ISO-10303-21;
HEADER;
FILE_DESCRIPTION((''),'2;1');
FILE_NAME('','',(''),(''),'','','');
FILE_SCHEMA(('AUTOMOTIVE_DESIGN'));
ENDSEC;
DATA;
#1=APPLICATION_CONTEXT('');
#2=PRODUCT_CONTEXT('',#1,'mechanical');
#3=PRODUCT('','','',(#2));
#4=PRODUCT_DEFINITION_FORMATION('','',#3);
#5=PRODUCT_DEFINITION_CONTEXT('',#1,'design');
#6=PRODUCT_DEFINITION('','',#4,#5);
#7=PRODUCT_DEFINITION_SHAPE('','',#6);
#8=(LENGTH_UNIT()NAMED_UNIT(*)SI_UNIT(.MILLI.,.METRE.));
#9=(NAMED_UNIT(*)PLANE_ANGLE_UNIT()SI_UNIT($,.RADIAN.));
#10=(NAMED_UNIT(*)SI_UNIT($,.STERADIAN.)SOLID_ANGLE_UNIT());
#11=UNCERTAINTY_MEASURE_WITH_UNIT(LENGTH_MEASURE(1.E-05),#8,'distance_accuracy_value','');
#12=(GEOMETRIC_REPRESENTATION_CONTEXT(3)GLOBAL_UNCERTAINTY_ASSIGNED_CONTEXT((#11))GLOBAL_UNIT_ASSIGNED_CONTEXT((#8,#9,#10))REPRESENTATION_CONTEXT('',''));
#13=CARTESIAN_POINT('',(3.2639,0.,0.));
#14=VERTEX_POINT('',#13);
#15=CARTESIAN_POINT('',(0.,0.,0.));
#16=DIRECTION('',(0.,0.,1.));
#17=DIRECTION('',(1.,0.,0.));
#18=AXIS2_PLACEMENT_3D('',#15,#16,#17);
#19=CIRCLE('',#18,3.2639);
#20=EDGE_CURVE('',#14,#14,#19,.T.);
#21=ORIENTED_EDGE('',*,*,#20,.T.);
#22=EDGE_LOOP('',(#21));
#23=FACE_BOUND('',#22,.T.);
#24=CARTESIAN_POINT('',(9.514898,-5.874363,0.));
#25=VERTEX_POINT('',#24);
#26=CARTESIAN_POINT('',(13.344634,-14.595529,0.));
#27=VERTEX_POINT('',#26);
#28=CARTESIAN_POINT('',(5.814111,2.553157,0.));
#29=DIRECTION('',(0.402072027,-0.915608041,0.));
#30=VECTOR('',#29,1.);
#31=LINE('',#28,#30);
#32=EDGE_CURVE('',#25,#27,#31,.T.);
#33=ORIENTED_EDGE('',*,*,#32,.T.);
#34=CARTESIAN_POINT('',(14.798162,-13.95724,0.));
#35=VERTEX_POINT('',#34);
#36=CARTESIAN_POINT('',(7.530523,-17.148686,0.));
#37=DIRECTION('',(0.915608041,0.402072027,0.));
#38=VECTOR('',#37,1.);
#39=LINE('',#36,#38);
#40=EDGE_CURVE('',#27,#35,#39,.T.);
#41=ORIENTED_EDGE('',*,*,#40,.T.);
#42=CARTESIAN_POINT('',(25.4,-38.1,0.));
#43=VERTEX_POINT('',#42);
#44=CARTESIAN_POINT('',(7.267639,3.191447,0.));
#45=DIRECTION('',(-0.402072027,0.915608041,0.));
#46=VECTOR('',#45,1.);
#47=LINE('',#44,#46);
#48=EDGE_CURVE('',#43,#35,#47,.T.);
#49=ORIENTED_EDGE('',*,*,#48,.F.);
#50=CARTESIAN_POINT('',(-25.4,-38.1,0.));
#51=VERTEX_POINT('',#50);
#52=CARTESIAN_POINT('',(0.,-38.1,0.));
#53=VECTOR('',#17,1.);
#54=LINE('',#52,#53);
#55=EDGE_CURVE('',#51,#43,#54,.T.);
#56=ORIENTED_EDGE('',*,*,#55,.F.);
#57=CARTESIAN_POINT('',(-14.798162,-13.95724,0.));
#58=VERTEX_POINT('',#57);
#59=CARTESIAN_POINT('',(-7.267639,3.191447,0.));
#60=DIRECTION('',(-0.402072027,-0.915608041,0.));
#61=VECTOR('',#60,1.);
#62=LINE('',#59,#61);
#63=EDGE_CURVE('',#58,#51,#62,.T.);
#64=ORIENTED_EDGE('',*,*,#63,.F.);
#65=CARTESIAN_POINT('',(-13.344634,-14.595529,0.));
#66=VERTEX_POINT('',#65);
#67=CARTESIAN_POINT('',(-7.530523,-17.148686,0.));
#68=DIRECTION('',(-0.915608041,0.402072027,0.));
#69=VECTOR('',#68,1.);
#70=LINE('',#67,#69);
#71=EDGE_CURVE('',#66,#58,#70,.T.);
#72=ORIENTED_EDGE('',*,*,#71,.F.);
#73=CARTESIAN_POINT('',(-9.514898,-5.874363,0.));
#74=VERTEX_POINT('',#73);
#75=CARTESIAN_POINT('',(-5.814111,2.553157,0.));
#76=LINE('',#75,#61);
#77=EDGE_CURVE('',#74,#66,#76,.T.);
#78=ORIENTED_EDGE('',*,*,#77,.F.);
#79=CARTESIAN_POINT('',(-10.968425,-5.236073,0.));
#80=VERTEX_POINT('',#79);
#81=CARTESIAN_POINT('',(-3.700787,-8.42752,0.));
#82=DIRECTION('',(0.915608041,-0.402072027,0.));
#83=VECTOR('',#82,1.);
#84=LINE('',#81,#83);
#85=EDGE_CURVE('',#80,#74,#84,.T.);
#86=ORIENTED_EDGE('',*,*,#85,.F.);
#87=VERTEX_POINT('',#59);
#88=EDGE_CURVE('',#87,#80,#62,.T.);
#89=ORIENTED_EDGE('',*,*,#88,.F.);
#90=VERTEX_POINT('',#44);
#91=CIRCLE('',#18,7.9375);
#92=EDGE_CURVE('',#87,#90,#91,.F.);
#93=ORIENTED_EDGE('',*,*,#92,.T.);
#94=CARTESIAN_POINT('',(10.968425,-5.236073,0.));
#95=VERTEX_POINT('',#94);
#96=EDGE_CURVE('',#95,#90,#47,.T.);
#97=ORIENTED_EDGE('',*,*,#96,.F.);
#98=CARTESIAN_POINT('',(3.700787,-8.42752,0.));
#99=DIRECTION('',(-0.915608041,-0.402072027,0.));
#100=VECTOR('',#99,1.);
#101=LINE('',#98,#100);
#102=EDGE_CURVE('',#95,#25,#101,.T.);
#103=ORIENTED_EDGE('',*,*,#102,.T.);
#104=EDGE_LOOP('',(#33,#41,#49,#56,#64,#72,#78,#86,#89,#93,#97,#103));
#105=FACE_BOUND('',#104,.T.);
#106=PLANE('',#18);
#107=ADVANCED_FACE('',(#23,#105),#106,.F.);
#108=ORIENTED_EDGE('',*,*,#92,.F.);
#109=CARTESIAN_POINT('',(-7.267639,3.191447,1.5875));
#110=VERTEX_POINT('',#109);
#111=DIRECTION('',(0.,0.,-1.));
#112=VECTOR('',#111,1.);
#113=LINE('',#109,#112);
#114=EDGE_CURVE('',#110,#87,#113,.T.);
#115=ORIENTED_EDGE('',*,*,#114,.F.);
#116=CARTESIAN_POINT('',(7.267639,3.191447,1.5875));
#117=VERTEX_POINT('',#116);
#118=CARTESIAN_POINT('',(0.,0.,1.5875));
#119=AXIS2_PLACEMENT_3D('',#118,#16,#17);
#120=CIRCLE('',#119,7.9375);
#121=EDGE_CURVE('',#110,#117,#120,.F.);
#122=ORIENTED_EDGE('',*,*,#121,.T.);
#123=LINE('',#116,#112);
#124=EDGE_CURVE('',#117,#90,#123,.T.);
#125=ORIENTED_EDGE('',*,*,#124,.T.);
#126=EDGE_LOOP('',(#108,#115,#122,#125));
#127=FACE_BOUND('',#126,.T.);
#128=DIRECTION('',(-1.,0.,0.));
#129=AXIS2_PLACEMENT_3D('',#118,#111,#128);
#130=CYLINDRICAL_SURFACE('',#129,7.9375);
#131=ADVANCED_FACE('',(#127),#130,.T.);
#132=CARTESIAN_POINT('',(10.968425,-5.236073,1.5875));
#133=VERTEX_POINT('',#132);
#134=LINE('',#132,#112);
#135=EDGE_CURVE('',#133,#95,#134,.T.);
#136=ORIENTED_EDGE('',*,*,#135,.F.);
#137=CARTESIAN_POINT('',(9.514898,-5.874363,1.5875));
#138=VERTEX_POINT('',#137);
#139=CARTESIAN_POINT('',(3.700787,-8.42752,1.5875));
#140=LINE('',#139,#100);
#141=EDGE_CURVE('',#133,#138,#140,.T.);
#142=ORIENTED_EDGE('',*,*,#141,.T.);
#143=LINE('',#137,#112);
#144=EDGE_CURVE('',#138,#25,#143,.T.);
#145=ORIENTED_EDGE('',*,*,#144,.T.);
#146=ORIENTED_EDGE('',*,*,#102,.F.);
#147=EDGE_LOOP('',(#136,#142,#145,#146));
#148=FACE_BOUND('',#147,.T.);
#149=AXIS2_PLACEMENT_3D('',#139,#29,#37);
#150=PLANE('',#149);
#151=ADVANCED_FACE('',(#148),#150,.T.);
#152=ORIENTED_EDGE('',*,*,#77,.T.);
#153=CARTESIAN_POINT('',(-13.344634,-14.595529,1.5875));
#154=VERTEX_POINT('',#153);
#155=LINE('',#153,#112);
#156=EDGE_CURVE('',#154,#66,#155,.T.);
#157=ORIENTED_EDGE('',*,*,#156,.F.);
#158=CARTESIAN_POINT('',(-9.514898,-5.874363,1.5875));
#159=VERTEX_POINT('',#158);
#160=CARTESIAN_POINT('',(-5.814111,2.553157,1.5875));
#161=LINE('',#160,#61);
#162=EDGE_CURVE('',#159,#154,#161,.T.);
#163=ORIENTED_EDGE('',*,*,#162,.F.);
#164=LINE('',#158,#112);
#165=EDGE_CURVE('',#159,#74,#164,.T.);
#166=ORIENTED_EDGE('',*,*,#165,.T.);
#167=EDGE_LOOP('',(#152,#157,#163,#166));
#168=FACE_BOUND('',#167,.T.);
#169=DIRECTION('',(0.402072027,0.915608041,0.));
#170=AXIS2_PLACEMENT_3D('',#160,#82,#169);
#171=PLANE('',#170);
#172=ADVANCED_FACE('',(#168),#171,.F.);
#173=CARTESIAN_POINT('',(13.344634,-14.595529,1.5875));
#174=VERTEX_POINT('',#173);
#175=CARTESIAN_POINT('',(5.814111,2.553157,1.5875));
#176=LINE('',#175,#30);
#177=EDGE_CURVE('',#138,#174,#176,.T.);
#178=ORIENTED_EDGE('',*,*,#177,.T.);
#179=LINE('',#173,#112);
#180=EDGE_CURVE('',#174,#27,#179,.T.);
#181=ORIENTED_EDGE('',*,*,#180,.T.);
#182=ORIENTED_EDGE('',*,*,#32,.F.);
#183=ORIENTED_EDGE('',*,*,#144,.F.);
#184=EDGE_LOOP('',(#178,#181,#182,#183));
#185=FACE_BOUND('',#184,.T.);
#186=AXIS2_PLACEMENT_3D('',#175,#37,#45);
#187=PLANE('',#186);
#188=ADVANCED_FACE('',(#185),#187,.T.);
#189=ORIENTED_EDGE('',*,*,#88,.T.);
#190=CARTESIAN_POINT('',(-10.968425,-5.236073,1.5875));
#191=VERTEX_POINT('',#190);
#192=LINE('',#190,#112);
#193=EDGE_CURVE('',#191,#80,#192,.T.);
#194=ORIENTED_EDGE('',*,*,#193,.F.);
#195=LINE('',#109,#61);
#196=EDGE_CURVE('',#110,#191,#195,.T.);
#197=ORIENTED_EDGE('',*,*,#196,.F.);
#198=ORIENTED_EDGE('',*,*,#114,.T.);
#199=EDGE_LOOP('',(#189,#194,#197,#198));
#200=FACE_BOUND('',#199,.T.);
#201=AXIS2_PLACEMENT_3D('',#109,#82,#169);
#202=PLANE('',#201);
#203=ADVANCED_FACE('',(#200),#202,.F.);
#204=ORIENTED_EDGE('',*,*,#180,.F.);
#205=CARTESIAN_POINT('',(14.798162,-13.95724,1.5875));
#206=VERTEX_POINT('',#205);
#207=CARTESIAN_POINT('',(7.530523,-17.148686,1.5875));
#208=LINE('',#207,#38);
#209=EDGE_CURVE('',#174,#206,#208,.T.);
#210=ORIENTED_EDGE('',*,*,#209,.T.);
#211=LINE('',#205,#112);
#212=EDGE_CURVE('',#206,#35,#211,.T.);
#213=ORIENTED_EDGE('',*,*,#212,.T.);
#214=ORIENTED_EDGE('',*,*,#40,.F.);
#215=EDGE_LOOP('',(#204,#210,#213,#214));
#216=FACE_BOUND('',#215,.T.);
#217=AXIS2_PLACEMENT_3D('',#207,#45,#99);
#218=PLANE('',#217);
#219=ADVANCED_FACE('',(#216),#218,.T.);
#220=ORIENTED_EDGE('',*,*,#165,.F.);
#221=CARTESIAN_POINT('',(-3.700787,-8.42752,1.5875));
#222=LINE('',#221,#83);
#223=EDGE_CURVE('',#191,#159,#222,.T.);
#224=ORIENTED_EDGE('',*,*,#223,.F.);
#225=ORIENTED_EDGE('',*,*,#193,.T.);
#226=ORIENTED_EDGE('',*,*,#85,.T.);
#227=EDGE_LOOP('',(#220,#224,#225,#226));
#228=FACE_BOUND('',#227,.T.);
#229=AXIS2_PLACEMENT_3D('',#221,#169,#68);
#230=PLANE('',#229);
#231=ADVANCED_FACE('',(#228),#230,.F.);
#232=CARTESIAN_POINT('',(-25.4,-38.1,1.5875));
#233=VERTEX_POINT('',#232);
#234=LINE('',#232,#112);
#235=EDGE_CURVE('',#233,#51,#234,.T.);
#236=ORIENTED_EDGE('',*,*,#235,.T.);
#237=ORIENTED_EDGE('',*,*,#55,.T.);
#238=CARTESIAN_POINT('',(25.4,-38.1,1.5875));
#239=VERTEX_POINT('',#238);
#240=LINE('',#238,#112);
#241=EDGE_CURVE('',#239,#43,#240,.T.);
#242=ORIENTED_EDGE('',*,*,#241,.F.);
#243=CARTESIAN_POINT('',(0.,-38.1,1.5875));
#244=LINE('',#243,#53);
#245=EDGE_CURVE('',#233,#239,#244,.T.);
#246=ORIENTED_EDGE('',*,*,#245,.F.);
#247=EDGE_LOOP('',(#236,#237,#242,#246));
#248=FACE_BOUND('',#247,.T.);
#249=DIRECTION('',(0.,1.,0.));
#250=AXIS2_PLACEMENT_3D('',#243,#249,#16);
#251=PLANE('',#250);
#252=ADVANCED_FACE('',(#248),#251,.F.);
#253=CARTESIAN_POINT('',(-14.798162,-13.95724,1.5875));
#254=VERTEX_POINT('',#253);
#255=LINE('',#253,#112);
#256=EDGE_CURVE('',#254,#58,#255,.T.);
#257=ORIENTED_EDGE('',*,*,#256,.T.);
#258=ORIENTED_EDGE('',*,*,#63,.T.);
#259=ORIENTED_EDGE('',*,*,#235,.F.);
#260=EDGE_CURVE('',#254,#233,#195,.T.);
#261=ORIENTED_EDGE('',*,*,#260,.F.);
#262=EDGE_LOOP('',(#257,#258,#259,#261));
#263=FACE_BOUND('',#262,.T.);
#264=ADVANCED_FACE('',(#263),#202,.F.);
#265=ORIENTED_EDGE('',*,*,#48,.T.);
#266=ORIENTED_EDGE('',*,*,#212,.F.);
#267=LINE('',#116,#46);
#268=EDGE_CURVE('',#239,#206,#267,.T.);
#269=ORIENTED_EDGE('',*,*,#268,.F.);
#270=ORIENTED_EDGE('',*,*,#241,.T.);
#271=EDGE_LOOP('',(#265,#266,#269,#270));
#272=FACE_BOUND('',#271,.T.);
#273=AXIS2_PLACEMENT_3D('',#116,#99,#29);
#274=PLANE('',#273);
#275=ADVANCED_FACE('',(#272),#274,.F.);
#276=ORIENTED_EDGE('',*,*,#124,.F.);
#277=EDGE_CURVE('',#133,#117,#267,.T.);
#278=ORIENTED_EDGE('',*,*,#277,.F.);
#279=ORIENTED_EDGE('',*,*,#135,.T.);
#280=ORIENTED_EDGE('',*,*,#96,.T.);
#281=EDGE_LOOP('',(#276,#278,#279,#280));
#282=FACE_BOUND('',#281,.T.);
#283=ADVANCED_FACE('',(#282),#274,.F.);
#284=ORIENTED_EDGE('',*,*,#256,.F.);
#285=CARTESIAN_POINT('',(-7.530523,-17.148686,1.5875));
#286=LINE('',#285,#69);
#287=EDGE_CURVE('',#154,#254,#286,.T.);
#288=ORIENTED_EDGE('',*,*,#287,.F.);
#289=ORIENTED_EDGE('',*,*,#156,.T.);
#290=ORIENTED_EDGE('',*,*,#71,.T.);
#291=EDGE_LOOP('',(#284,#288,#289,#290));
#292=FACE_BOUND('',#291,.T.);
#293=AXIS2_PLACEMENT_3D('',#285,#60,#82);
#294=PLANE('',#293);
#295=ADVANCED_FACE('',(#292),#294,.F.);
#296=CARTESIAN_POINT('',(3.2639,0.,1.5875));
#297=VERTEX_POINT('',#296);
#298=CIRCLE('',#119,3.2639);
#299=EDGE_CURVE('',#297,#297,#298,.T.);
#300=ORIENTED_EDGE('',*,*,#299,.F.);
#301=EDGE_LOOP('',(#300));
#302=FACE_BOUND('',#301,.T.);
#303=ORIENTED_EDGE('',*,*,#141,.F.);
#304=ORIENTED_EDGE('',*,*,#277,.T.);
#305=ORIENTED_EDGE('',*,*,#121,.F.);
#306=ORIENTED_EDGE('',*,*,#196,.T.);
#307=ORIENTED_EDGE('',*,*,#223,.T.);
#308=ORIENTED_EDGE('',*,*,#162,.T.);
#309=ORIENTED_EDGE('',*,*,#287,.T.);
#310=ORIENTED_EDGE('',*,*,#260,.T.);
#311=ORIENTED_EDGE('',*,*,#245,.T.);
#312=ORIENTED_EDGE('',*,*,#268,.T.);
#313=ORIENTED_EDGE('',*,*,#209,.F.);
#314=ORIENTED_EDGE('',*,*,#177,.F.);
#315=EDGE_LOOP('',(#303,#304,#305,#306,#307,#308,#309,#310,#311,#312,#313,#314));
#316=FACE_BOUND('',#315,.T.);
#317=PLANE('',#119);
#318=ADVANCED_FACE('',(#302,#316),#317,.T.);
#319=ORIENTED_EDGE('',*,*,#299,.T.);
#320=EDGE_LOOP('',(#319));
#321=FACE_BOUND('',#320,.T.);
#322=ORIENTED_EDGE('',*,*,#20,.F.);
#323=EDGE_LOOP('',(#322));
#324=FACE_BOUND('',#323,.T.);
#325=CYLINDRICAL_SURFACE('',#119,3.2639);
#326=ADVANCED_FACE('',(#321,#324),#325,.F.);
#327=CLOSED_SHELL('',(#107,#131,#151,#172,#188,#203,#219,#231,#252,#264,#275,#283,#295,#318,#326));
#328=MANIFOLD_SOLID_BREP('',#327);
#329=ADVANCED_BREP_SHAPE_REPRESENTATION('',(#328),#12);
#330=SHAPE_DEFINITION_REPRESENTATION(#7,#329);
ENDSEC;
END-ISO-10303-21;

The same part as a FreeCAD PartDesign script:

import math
import FreeCAD as App
import Part
import Sketcher
Q = App.Units.Quantity

doc = App.newDocument("Part")
params = doc.addObject("Spreadsheet::Sheet", "Params")
for row, (alias, value) in enumerate([
    ("sketch1_width", "2 in"),
    ("sketch1_radius", "0.3125 in"),
    ("sketch1_length", "0.0625 in"),
    ("sketch1_length2", "0.375 in"),
    ("pad1_length", "0.0625 in"),
    ("sketch2_diameter", "0.257 in"),
    ("hole_diameter", "0.257 in"),
], start=1):
    params.set(f"A{row}", alias)
    params.set(f"B{row}", "=" + value)
    params.setAlias(f"B{row}", alias)

body = doc.addObject("PartDesign::Body", "Body")

sketch1 = body.newObject("Sketcher::SketchObject", "Sketch")
sketch1.AttachmentSupport = (doc.getObject("XY_Plane"), [""])
sketch1.MapMode = "FlatFace"
sketch1.addGeometry([
    Part.ArcOfCircle(Part.Circle(App.Vector(0, 0, 0), App.Vector(0, 0, 1), 7.9), math.radians(24), math.radians(156)),
    Part.LineSegment(App.Vector(-7.3, 3.2, 0), App.Vector(-11, -5.2, 0)),
    Part.LineSegment(App.Vector(-11, -5.2, 0), App.Vector(-9.5, -5.9, 0)),
    Part.LineSegment(App.Vector(-9.5, -5.9, 0), App.Vector(-13.3, -14.6, 0)),
    Part.LineSegment(App.Vector(-13.3, -14.6, 0), App.Vector(-14.8, -14, 0)),
    Part.LineSegment(App.Vector(-14.8, -14, 0), App.Vector(-25.4, -38.1, 0)),
    Part.LineSegment(App.Vector(-25.4, -38.1, 0), App.Vector(25.4, -38.1, 0)),
    Part.LineSegment(App.Vector(25.4, -38.1, 0), App.Vector(14.8, -14, 0)),
    Part.LineSegment(App.Vector(14.8, -14, 0), App.Vector(13.3, -14.6, 0)),
    Part.LineSegment(App.Vector(13.3, -14.6, 0), App.Vector(9.5, -5.9, 0)),
    Part.LineSegment(App.Vector(9.5, -5.9, 0), App.Vector(11, -5.2, 0)),
    Part.LineSegment(App.Vector(11, -5.2, 0), App.Vector(7.3, 3.2, 0)),
], False)
sketch1.addConstraint([
    Sketcher.Constraint("Tangent", 0, 2, 1, 1),
    Sketcher.Constraint("Coincident", 1, 2, 2, 1),
    Sketcher.Constraint("Coincident", 2, 2, 3, 1),
    Sketcher.Constraint("Coincident", 3, 2, 4, 1),
    Sketcher.Constraint("Coincident", 4, 2, 5, 1),
    Sketcher.Constraint("Coincident", 5, 2, 6, 1),
    Sketcher.Constraint("Coincident", 6, 2, 7, 1),
    Sketcher.Constraint("Coincident", 7, 2, 8, 1),
    Sketcher.Constraint("Coincident", 8, 2, 9, 1),
    Sketcher.Constraint("Coincident", 9, 2, 10, 1),
    Sketcher.Constraint("Coincident", 10, 2, 11, 1),
    Sketcher.Constraint("Tangent", 11, 2, 0, 1),
    Sketcher.Constraint("Horizontal", 6),
    Sketcher.Constraint("Coincident", 0, 3, -1, 1),
    Sketcher.Constraint("Symmetric", 4, 2, 7, 2, -2),
    Sketcher.Constraint("Symmetric", 3, 2, 8, 2, -2),
    Sketcher.Constraint("Symmetric", 2, 2, 9, 2, -2),
    Sketcher.Constraint("Symmetric", 1, 2, 10, 2, -2),
    Sketcher.Constraint("Perpendicular", 1, 2),
    Sketcher.Constraint("Perpendicular", 2, 3),
    Sketcher.Constraint("Perpendicular", 3, 4),
    Sketcher.Constraint("Perpendicular", 4, 5),
    Sketcher.Constraint("Perpendicular", 7, 8),
    Sketcher.Constraint("Equal", 2, 4),
    Sketcher.Constraint("DistanceX", 6, 1, 6, 2, Q("2 in")),
    Sketcher.Constraint("Radius", 0, Q("0.3125 in")),
    Sketcher.Constraint("DistanceY", 5, 2, -1, 1, Q("1.5 in")),
    Sketcher.Constraint("Distance", 2, Q("0.0625 in")),
    Sketcher.Constraint("Distance", 3, Q("0.375 in")),
    Sketcher.Constraint("DistanceX", 0, 2, 7, 2, Q("22.0658 mm")),
])
sketch1.setExpression("Constraints[24]", "Params.sketch1_width")
sketch1.setExpression("Constraints[25]", "Params.sketch1_radius")
sketch1.setExpression("Constraints[27]", "Params.sketch1_length")
sketch1.setExpression("Constraints[28]", "Params.sketch1_length2")
pad1 = body.newObject("PartDesign::Pad", "Pad")
pad1.Profile = sketch1
pad1.setExpression("Length", "Params.pad1_length")

sketch2 = body.newObject("Sketcher::SketchObject", "Sketch001")
sketch2.AttachmentSupport = (doc.getObject("XY_Plane"), [""])
sketch2.MapMode = "FlatFace"
sketch2.AttachmentOffset = App.Placement(App.Vector(0, 0, 0.0625 * 25.4), App.Rotation())
sketch2.addGeometry(Part.Circle(App.Vector(0, 0, 0), App.Vector(0, 0, 1), 3.3), False)
sketch2.addConstraint([
    Sketcher.Constraint("Coincident", 0, 3, -1, 1),
    Sketcher.Constraint("Diameter", 0, Q("0.257 in")),
])
sketch2.setExpression("Constraints[1]", "Params.sketch2_diameter")
doc.recompute()
hole = body.newObject("PartDesign::Hole", "Hole")
hole.Profile = sketch2
hole.ThreadType = "None"
hole.setExpression("Diameter", "Params.hole_diameter")
hole.DepthType = "ThroughAll"

doc.recompute()
